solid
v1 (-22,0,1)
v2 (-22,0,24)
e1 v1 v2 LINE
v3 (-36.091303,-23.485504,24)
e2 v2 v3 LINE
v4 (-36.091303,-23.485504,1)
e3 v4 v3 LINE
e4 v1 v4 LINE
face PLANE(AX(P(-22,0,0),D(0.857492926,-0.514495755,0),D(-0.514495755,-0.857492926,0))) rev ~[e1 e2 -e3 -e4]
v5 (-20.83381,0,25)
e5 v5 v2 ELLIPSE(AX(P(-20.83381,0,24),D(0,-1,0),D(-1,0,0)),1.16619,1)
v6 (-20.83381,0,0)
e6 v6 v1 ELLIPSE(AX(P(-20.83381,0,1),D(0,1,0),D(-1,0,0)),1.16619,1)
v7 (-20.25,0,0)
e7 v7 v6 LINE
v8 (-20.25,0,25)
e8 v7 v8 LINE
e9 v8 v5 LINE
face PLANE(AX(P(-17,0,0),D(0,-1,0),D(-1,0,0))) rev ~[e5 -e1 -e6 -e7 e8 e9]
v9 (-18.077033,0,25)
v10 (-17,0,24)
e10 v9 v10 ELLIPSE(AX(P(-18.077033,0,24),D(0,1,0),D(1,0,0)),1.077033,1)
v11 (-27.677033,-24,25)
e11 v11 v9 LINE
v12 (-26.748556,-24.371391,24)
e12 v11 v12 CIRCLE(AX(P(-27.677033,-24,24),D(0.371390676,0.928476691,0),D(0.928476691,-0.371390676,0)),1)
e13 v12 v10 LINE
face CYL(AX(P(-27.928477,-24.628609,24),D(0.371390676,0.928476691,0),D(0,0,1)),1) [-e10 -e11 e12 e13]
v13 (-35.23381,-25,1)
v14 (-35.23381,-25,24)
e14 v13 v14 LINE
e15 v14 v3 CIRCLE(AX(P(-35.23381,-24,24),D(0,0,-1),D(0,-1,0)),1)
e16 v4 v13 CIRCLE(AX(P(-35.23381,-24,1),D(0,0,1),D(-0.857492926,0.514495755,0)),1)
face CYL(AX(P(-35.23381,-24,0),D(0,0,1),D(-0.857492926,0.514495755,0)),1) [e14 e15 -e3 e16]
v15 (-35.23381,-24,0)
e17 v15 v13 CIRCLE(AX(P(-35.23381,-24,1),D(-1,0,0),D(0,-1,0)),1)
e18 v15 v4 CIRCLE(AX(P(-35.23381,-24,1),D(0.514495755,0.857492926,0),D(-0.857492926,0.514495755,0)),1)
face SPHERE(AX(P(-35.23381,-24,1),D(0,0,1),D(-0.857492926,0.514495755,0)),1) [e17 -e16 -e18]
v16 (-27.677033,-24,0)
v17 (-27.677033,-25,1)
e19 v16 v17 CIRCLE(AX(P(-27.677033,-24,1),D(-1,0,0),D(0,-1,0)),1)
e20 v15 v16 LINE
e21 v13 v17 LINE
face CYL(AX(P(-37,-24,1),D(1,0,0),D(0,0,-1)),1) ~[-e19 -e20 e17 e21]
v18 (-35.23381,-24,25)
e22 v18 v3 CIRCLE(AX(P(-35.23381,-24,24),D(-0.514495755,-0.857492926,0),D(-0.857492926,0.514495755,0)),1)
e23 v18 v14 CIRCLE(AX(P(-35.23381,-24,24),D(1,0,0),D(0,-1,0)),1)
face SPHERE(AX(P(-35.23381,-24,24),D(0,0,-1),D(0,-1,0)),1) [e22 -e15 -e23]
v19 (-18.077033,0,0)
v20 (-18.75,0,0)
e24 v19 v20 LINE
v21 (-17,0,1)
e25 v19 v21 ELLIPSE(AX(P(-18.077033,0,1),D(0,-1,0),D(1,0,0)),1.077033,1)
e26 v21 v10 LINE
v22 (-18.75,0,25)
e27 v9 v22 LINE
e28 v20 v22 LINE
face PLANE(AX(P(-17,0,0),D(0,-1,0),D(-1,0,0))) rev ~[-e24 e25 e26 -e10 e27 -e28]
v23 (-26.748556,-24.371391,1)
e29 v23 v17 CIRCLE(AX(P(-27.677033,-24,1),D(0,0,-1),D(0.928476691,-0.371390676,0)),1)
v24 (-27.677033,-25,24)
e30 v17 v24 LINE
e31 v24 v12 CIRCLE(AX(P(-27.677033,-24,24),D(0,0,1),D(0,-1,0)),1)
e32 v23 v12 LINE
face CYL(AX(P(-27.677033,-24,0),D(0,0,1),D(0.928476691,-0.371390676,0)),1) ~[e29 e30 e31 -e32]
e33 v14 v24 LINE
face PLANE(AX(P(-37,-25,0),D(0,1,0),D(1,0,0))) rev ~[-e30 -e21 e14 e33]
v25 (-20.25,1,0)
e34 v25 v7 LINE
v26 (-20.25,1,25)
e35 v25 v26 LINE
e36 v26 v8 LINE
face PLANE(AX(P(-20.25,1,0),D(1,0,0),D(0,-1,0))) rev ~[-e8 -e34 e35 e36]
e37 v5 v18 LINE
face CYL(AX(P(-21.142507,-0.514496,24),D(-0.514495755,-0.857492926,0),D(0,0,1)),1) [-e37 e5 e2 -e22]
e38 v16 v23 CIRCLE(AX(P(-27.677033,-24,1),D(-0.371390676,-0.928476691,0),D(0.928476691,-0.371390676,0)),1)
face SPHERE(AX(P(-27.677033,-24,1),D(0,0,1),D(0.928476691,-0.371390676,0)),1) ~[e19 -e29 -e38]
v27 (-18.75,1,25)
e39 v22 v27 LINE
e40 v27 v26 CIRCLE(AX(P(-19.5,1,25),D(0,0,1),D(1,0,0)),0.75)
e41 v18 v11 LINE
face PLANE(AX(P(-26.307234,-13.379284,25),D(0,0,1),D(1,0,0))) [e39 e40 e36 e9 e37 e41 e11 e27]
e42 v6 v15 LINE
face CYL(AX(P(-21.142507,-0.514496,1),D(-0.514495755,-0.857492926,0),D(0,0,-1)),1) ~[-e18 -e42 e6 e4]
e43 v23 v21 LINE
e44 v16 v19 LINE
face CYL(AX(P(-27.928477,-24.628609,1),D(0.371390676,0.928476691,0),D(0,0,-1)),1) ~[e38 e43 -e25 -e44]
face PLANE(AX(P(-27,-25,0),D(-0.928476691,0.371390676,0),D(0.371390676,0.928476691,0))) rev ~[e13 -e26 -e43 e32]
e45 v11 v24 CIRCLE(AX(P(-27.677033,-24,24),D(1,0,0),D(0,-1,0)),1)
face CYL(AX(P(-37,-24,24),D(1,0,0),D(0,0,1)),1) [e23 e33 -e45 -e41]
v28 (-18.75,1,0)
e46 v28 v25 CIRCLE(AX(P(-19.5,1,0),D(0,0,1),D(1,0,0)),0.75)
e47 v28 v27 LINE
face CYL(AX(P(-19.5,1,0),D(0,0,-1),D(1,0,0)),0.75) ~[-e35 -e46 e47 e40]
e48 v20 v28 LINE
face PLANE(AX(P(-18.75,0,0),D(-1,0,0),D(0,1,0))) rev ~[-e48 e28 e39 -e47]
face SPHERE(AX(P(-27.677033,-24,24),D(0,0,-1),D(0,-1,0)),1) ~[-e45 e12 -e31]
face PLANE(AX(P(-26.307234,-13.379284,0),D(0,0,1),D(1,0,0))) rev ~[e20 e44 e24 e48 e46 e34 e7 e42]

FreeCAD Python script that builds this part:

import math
import FreeCAD as App
import Part
import Sketcher

V = App.Vector


def edges_at(feature, points):
    """Names of the edges that pass closest to the given points."""
    edges = feature.Shape.Edges
    near = lambda p: min(range(len(edges)), key=lambda i: edges[i].distToShape(Part.Vertex(*p))[0])
    return sorted({f"Edge{near(p) + 1}" for p in points})


def add_polygon(sketch, points):
    """Adds a closed chain of lines whose ends are joined by coincident constraints."""
    first, n = sketch.GeometryCount, len(points)
    for a, b in zip(points, points[1:] + points[:1]):
        sketch.addGeometry(Part.LineSegment(App.Vector(*a, 0), App.Vector(*b, 0)), False)
    for i in range(n):
        sketch.addConstraint(Sketcher.Constraint("Coincident", first + i, 2, first + (i + 1) % n, 1))

doc = App.newDocument("Part")
body = doc.addObject("PartDesign::Body", "Body")

# Sketch on XY plane
sketch1 = doc.addObject("Sketcher::SketchObject", "Sketch")
body.addObject(sketch1)
sketch1.AttachmentSupport = (doc.XY_Plane, [""])
sketch1.MapMode = "FlatFace"
add_polygon(sketch1, [(-17, 0), (-22, 0), (-37, -25), (-27, -25)])  # lines 0-3
sketch1.addConstraint(Sketcher.Constraint("Horizontal", 0))
sketch1.addConstraint(Sketcher.Constraint("Horizontal", 2))
sketch1.addConstraint(Sketcher.Constraint("PointOnObject", 0, 2, -1))
sketch1.addConstraint(Sketcher.Constraint("DistanceX", 0, 2, 0, 1, 5.0))
sketch1.addConstraint(Sketcher.Constraint("DistanceX", 2, 1, 2, 2, 10.0))
sketch1.addConstraint(Sketcher.Constraint("DistanceX", 0, 2, -1, 1, 22.0))
sketch1.addConstraint(Sketcher.Constraint("DistanceX", 1, 2, -1, 1, 37.0))
sketch1.addConstraint(Sketcher.Constraint("DistanceY", 1, 2, -1, 1, 25.0))
pad1 = doc.addObject("PartDesign::Pad", "Pad")
body.addObject(pad1)
pad1.Profile = sketch1
pad1.Length = 25

# Sketch on XY plane
sketch2 = doc.addObject("Sketcher::SketchObject", "Sketch001")
body.addObject(sketch2)
sketch2.AttachmentSupport = (doc.XY_Plane, [""])
sketch2.MapMode = "FlatFace"
sketch2.addGeometry(Part.LineSegment(V(-20.2, 1, 0), V(-20.2, 0, 0)), False)
sketch2.addGeometry(Part.LineSegment(V(-20.2, 0, 0), V(-18.8, 0, 0)), False)
sketch2.addGeometry(Part.LineSegment(V(-18.8, 0, 0), V(-18.8, 1, 0)), False)
sketch2.addGeometry(Part.ArcOfCircle(Part.Circle(V(-19.5, 1, 0), V(0, 0, 1), 0.8), math.radians(0), math.radians(180)), False)
sketch2.addConstraint(Sketcher.Constraint("Coincident", 0, 2, 1, 1))
sketch2.addConstraint(Sketcher.Constraint("Coincident", 1, 2, 2, 1))
sketch2.addConstraint(Sketcher.Constraint("Tangent", 2, 2, 3, 1))
sketch2.addConstraint(Sketcher.Constraint("Tangent", 3, 2, 0, 1))
sketch2.addConstraint(Sketcher.Constraint("Vertical", 0))
sketch2.addConstraint(Sketcher.Constraint("Horizontal", 1))
sketch2.addConstraint(Sketcher.Constraint("Vertical", 2))
sketch2.addConstraint(Sketcher.Constraint("PointOnObject", 0, 2, -1))
sketch2.addConstraint(Sketcher.Constraint("DistanceY", 0, 2, 0, 1, 1.0))
sketch2.addConstraint(Sketcher.Constraint("Radius", 3, 0.75))
sketch2.addConstraint(Sketcher.Constraint("DistanceX", 3, 3, -1, 1, 19.5))
pad2 = doc.addObject("PartDesign::Pad", "Pad001")
body.addObject(pad2)
pad2.Profile = sketch2
pad2.Length = 25
doc.recompute()

fillet = doc.addObject("PartDesign::Fillet", "Fillet")
body.addObject(fillet)
fillet.Base = (pad2, edges_at(pad2, [
    (-22, -12.5, 0),
    (-29.5, -12.5, 0),
    (-29.5, -12.5, 25),
    (-22, -12.5, 25),
    (-32, -25, 0),
    (-27, -25, 12.5),
    (-37, -25, 12.5),
    (-32, -25, 25),
]))
fillet.Radius = 1
body2 = doc.addObject("PartDesign::Body", "Body001")

# Sketch on XY plane
sketch3 = doc.addObject("Sketcher::SketchObject", "Sketch002")
body2.addObject(sketch3)
sketch3.AttachmentSupport = (doc.getObject("XY_Plane001"), [""])
sketch3.MapMode = "FlatFace"
add_polygon(sketch3, [(37, -25), (22, 0), (17, 0), (27, -25)])  # lines 0-3
sketch3.addConstraint(Sketcher.Constraint("Horizontal", 1))
sketch3.addConstraint(Sketcher.Constraint("Horizontal", 3))
sketch3.addConstraint(Sketcher.Constraint("PointOnObject", 0, 2, -1))
sketch3.addConstraint(Sketcher.Constraint("DistanceX", 1, 2, 1, 1, 5.0))
sketch3.addConstraint(Sketcher.Constraint("DistanceX", 3, 1, 3, 2, 10.0))
sketch3.addConstraint(Sketcher.Constraint("DistanceX", -1, 1, 0, 2, 22.0))
sketch3.addConstraint(Sketcher.Constraint("DistanceX", -1, 1, 2, 2, 27.0))
sketch3.addConstraint(Sketcher.Constraint("DistanceY", 2, 2, -1, 1, 25.0))
pad3 = doc.addObject("PartDesign::Pad", "Pad002")
body2.addObject(pad3)
pad3.Profile = sketch3
pad3.Length = 25

# Sketch on XY plane
sketch4 = doc.addObject("Sketcher::SketchObject", "Sketch003")
body2.addObject(sketch4)
sketch4.AttachmentSupport = (doc.getObject("XY_Plane001"), [""])
sketch4.MapMode = "FlatFace"
sketch4.addGeometry(Part.ArcOfCircle(Part.Circle(V(19.5, 1, 0), V(0, 0, 1), 0.8), math.radians(0), math.radians(180)), False)
sketch4.addGeometry(Part.LineSegment(V(18.8, 1, 0), V(18.8, 0, 0)), False)
sketch4.addGeometry(Part.LineSegment(V(18.8, 0, 0), V(20.2, 0, 0)), False)
sketch4.addGeometry(Part.LineSegment(V(20.2, 0, 0), V(20.2, 1, 0)), False)
sketch4.addConstraint(Sketcher.Constraint("Tangent", 0, 2, 1, 1))
sketch4.addConstraint(Sketcher.Constraint("Coincident", 1, 2, 2, 1))
sketch4.addConstraint(Sketcher.Constraint("Coincident", 2, 2, 3, 1))
sketch4.addConstraint(Sketcher.Constraint("Tangent", 3, 2, 0, 1))
sketch4.addConstraint(Sketcher.Constraint("Vertical", 1))
sketch4.addConstraint(Sketcher.Constraint("Horizontal", 2))
sketch4.addConstraint(Sketcher.Constraint("Vertical", 3))
sketch4.addConstraint(Sketcher.Constraint("PointOnObject", 1, 2, -1))
sketch4.addConstraint(Sketcher.Constraint("DistanceY", 1, 2, 1, 1, 1.0))
sketch4.addConstraint(Sketcher.Constraint("Radius", 0, 0.75))
sketch4.addConstraint(Sketcher.Constraint("DistanceX", -1, 1, 0, 3, 19.5))
pad4 = doc.addObject("PartDesign::Pad", "Pad003")
body2.addObject(pad4)
pad4.Profile = sketch4
pad4.Length = 25
body2.Visibility = False

doc.recompute()
